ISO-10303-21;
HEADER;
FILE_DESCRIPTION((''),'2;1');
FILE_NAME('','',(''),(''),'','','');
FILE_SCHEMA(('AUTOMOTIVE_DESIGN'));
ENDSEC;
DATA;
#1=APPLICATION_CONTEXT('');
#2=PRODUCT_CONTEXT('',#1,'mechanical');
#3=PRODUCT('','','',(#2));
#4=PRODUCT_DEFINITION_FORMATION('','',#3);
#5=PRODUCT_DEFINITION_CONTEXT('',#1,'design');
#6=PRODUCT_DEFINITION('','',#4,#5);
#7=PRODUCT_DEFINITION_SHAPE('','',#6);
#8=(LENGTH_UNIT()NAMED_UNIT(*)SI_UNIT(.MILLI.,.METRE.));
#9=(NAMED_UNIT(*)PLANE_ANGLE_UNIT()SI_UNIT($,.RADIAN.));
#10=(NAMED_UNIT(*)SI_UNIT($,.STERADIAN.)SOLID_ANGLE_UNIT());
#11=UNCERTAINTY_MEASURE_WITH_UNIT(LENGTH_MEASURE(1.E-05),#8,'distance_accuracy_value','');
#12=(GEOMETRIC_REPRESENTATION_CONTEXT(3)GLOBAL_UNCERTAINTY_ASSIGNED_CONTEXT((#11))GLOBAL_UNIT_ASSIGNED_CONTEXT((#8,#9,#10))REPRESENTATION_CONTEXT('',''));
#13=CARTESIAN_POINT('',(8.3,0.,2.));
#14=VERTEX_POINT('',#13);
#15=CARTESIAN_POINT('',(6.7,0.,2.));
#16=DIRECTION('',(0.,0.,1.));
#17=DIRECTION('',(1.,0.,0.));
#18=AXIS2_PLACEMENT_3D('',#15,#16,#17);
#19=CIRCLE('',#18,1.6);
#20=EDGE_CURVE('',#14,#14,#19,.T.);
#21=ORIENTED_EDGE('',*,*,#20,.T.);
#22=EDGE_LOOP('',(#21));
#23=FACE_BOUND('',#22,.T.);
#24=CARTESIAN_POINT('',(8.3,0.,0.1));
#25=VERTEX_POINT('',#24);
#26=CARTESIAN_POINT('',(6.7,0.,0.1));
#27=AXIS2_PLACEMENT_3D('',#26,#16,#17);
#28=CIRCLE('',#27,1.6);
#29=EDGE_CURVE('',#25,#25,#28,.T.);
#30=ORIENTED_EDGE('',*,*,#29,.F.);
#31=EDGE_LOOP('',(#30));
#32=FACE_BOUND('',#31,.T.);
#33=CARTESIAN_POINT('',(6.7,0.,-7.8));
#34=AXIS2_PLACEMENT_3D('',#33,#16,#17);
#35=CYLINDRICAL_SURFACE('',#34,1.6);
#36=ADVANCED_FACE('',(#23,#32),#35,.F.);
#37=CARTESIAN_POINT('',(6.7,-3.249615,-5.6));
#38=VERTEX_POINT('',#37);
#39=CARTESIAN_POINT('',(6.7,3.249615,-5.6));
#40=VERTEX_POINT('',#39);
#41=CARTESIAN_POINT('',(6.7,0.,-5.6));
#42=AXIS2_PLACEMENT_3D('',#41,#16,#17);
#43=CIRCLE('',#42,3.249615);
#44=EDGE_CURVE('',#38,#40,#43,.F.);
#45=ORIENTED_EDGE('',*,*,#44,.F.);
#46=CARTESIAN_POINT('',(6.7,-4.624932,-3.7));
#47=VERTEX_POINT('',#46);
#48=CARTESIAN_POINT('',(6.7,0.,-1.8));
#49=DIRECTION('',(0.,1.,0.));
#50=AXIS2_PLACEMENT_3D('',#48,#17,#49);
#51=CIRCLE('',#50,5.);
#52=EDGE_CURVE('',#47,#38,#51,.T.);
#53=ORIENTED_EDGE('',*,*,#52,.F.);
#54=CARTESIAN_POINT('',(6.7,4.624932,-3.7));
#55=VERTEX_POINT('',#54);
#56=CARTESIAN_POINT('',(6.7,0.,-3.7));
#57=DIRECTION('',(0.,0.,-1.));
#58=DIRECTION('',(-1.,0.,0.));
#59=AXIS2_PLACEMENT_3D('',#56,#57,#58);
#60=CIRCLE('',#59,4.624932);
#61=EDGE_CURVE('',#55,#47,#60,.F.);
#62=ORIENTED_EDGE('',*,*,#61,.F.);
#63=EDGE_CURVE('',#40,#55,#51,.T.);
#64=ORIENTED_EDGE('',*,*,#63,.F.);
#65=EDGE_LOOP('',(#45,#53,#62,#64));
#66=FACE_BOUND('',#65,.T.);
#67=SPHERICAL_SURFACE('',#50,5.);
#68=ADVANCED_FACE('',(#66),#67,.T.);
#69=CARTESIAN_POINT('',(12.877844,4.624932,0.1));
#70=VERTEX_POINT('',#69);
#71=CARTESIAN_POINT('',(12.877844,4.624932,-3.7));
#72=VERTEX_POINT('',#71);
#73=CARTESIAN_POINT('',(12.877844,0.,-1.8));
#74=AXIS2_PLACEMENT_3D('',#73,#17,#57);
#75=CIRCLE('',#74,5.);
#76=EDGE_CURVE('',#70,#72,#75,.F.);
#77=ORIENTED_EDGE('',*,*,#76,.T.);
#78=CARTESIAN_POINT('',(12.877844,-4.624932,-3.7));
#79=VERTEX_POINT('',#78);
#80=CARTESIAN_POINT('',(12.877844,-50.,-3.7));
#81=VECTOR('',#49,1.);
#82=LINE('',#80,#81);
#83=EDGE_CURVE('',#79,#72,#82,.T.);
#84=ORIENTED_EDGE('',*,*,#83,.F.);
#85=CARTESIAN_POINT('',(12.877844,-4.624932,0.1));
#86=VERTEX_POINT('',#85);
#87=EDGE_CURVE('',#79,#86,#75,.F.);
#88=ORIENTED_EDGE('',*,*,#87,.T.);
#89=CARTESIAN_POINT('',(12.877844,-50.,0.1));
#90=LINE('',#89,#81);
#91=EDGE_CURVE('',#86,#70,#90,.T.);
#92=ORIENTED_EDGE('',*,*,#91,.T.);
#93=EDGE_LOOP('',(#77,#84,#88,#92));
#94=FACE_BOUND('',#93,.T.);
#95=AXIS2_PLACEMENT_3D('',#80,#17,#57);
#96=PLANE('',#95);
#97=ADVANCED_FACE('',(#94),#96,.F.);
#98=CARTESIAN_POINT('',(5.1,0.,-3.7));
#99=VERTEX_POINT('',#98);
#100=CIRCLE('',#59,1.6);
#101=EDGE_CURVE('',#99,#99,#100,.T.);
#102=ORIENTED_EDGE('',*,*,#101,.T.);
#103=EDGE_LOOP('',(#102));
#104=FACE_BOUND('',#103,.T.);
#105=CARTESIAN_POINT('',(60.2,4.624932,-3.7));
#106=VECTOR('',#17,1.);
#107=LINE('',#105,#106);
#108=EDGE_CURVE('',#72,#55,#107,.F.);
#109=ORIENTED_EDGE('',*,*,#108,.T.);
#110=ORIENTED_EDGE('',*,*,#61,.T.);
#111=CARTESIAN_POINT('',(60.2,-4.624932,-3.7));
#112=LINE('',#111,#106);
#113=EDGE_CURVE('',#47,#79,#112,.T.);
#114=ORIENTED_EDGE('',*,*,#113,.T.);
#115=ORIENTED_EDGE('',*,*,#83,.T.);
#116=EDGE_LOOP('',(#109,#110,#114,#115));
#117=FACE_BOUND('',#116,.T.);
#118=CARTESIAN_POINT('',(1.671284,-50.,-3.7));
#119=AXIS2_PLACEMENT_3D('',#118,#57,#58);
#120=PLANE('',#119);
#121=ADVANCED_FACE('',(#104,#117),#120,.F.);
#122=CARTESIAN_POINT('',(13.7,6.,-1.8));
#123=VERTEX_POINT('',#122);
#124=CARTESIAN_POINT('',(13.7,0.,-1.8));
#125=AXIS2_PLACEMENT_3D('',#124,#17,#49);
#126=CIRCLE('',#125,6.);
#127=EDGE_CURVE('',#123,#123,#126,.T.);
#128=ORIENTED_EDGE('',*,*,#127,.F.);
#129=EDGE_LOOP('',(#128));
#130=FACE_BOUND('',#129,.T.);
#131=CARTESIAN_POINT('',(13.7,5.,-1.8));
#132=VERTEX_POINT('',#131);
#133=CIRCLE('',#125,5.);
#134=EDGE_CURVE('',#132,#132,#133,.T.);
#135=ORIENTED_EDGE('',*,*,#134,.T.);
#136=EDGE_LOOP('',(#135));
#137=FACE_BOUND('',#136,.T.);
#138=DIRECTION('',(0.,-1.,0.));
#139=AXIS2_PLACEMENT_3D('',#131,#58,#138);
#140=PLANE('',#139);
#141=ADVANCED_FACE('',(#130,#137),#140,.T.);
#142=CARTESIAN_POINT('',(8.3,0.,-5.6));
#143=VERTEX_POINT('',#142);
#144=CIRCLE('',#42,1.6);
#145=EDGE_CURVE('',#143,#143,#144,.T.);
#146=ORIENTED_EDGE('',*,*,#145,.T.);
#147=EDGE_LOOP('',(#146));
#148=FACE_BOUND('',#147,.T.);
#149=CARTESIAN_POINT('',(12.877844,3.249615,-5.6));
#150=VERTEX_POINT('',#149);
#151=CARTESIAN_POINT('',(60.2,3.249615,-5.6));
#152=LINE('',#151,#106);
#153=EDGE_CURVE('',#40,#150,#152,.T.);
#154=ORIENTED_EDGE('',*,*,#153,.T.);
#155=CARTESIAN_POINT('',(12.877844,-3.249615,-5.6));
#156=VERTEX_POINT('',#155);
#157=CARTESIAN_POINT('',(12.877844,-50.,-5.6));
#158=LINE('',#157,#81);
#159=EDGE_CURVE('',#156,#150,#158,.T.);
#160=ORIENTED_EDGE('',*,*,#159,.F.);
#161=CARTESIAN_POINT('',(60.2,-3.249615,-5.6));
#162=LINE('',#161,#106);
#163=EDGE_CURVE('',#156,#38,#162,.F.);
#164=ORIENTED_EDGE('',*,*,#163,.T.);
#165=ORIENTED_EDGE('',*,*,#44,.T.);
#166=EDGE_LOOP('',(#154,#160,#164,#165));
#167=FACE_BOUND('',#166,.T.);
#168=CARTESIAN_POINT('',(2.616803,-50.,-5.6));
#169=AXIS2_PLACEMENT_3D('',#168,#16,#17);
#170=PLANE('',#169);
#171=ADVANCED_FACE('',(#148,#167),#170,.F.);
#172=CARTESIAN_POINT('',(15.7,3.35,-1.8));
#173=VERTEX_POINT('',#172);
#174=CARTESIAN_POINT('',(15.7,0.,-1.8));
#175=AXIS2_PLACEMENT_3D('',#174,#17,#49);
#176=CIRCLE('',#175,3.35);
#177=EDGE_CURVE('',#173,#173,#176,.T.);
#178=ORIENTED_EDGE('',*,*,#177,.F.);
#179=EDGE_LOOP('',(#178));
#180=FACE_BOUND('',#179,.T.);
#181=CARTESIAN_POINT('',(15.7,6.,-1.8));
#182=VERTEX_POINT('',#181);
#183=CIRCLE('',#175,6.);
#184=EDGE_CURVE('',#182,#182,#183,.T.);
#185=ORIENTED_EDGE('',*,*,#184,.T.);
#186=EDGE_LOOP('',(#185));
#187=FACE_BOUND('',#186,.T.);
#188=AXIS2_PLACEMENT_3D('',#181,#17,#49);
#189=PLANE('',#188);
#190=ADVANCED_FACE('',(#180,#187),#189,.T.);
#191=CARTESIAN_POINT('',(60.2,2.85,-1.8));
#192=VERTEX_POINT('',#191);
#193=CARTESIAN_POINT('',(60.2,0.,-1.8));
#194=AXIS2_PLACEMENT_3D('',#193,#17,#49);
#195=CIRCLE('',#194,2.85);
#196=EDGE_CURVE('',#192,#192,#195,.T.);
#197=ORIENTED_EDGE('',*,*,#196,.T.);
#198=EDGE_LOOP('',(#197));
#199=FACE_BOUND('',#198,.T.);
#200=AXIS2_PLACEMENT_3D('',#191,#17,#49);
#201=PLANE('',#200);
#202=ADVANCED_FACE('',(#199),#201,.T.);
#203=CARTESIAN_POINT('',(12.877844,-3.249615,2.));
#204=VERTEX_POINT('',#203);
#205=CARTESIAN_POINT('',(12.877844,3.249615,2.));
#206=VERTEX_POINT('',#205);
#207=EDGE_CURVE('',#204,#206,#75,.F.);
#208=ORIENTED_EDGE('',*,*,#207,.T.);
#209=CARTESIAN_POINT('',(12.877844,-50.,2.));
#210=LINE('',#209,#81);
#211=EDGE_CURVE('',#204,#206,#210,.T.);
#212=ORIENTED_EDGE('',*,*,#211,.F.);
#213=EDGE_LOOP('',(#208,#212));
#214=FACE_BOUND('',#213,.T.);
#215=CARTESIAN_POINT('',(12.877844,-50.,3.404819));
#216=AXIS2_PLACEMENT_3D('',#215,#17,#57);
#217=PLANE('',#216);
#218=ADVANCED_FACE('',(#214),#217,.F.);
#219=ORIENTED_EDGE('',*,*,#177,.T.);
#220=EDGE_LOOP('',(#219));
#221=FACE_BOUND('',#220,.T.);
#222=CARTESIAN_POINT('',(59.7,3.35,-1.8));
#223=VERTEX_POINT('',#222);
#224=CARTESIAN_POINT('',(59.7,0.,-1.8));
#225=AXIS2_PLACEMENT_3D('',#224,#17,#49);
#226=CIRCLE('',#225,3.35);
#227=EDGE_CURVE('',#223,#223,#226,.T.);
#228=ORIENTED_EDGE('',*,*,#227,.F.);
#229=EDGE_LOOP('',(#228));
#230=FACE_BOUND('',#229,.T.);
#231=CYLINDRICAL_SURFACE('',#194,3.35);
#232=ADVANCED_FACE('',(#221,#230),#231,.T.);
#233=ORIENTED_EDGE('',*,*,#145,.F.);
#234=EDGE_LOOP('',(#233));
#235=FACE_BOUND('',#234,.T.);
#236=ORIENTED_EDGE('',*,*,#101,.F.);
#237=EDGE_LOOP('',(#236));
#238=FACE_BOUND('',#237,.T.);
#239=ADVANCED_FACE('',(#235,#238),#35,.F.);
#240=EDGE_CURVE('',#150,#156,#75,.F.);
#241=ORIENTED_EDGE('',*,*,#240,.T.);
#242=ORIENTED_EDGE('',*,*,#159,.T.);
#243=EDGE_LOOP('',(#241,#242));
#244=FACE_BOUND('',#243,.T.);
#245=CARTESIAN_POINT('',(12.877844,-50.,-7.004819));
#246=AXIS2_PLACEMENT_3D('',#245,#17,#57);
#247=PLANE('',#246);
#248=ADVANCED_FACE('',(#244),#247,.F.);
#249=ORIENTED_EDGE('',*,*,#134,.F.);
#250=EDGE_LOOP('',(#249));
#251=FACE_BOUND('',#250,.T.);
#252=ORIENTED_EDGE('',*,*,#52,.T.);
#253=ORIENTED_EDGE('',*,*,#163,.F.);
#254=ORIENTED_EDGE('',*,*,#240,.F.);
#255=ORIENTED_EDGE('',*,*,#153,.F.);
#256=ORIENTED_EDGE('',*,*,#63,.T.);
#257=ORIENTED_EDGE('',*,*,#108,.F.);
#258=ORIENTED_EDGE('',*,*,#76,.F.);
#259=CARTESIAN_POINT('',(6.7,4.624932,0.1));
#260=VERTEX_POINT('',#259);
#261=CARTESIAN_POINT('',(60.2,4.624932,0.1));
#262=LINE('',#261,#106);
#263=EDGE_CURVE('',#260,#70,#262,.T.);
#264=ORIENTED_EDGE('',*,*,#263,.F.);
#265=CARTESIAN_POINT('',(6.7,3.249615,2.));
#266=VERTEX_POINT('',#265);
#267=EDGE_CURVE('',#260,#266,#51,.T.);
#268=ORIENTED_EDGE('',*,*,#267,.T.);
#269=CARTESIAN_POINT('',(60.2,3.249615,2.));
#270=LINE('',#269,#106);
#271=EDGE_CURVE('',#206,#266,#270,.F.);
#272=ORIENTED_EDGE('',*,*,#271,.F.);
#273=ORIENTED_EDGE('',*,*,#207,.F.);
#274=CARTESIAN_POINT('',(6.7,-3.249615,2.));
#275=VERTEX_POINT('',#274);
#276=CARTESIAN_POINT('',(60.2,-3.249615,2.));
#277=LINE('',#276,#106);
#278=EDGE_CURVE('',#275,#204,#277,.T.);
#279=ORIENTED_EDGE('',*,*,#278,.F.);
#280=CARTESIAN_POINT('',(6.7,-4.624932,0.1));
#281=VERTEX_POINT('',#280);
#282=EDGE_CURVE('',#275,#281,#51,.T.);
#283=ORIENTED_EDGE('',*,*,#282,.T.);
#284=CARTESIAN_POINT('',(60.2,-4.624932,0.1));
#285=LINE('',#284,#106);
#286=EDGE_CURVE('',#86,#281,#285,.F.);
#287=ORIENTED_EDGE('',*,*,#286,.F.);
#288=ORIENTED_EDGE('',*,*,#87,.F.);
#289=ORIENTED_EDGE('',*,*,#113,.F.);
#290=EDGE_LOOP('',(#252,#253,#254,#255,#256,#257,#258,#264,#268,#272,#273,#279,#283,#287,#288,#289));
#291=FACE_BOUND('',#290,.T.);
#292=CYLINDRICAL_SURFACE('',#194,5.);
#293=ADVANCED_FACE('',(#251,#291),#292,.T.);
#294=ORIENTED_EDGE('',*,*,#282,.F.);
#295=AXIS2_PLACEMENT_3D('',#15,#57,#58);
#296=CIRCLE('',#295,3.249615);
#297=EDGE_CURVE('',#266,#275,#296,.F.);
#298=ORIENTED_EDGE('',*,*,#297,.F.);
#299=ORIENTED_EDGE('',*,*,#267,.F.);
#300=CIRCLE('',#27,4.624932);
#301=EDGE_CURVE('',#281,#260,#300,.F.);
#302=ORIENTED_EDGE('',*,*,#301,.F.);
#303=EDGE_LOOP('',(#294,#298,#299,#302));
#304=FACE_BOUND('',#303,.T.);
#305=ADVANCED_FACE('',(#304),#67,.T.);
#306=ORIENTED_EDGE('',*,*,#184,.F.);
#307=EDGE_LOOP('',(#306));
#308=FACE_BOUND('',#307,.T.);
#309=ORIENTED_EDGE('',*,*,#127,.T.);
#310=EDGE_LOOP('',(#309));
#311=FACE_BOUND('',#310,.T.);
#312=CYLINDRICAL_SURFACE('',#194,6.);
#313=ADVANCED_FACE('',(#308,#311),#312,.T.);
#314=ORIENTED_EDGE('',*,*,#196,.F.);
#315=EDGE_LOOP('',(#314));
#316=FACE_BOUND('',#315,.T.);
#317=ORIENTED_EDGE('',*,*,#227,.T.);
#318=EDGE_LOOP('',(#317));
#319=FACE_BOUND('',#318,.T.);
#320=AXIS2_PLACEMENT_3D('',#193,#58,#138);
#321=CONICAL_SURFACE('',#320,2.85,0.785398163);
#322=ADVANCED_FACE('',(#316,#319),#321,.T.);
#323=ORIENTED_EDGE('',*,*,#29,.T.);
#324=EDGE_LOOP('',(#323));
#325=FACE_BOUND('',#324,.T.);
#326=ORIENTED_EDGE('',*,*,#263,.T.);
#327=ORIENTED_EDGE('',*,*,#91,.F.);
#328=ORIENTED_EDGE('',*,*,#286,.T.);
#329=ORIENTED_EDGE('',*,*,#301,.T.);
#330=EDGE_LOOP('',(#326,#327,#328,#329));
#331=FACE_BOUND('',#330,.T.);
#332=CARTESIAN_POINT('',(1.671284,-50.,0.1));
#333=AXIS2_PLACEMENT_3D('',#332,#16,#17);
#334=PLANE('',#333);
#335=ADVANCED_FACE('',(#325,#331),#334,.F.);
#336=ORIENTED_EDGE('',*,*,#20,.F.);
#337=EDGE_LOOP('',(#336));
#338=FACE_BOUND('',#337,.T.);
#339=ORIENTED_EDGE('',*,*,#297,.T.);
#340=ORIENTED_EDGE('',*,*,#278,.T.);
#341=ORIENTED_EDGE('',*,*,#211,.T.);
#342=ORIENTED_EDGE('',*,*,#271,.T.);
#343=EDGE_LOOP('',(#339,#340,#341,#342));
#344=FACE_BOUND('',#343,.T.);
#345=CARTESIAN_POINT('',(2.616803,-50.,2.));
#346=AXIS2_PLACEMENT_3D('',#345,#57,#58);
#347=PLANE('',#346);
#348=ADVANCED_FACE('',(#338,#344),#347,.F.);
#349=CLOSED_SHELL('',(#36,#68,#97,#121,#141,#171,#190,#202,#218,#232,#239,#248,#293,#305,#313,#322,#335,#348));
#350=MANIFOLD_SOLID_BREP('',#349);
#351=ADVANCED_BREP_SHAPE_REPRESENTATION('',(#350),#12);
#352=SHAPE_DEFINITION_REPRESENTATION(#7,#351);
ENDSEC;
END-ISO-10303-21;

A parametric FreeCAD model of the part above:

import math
import FreeCAD as App
import Part
import Sketcher
from FreeCAD import Vector
Q = App.Units.Quantity

doc = App.newDocument("Part")
body = doc.addObject("PartDesign::Body", "Body")

sketch1 = body.newObject("Sketcher::SketchObject", "Sketch")
sketch1.AttachmentSupport = (doc.getObject("XY_Plane"), [""])
sketch1.MapMode = "FlatFace"
sketch1.AttachmentOffset = App.Placement(Vector(0, 0, -1.8), App.Rotation())
sketch1.addGeometry([
    Part.LineSegment(Vector(13.7, 5, 0), Vector(6.7, 5, 0)),
    Part.ArcOfCircle(Part.Circle(Vector(6.7, 0, 0), Vector(0, 0, 1), 5), math.radians(90), math.radians(180)),
    Part.LineSegment(Vector(1.7, 0, 0), Vector(60.2, 0, 0)),
    Part.LineSegment(Vector(60.2, 0, 0), Vector(60.2, 2.9, 0)),
    Part.LineSegment(Vector(60.2, 2.9, 0), Vector(59.7, 3.4, 0)),
    Part.LineSegment(Vector(59.7, 3.4, 0), Vector(15.7, 3.4, 0)),
    Part.LineSegment(Vector(15.7, 3.4, 0), Vector(15.7, 6, 0)),
    Part.LineSegment(Vector(15.7, 6, 0), Vector(13.7, 6, 0)),
    Part.LineSegment(Vector(13.7, 6, 0), Vector(13.7, 5, 0)),
], False)
sketch1.addConstraint([
    Sketcher.Constraint("Tangent", 0, 2, 1, 1),
    Sketcher.Constraint("Coincident", 1, 2, 2, 1),
    Sketcher.Constraint("Coincident", 2, 2, 3, 1),
    Sketcher.Constraint("Coincident", 3, 2, 4, 1),
    Sketcher.Constraint("Coincident", 4, 2, 5, 1),
    Sketcher.Constraint("Coincident", 5, 2, 6, 1),
    Sketcher.Constraint("Coincident", 6, 2, 7, 1),
    Sketcher.Constraint("Coincident", 7, 2, 8, 1),
    Sketcher.Constraint("Coincident", 8, 2, 0, 1),
    Sketcher.Constraint("Horizontal", 0),
    Sketcher.Constraint("Horizontal", 2),
    Sketcher.Constraint("Vertical", 3),
    Sketcher.Constraint("Horizontal", 5),
    Sketcher.Constraint("Vertical", 6),
    Sketcher.Constraint("Horizontal", 7),
    Sketcher.Constraint("Vertical", 8),
    Sketcher.Constraint("PointOnObject", 1, 3, -1),
    Sketcher.Constraint("PointOnObject", 1, 2, -1),
    Sketcher.Constraint("Radius", 1, Q("5 mm")),
    Sketcher.Constraint("DistanceX", 0, 2, 0, 1, Q("7 mm")),
    Sketcher.Constraint("DistanceX", 5, 2, 5, 1, Q("44 mm")),
    Sketcher.Constraint("DistanceX", 7, 2, 7, 1, Q("2 mm")),
    Sketcher.Constraint("DistanceY", 8, 2, 8, 1, Q("1 mm")),
    Sketcher.Constraint("Angle", 4, Q("135 deg")),
    Sketcher.Constraint("DistanceX", 2, 1, 2, 2, Q("58.5 mm")),
    Sketcher.Constraint("DistanceY", 3, 1, 3, 2, Q("2.85 mm")),
    Sketcher.Constraint("DistanceX", -1, 1, 1, 3, Q("6.7 mm")),
])
revolution = body.newObject("PartDesign::Revolution", "Revolution")
revolution.Profile = sketch1
revolution.ReferenceAxis = (sketch1, ["H_Axis"])
revolution.Angle = 360

sketch2 = body.newObject("Sketcher::SketchObject", "Sketch001")
sketch2.AttachmentSupport = (doc.getObject("XZ_Plane"), [""])
sketch2.MapMode = "FlatFace"
sketch2.addGeometry([
    Part.LineSegment(Vector(2.6, 2, 0), Vector(2.6, 3.4, 0)),
    Part.LineSegment(Vector(2.6, 3.4, 0), Vector(12.9, 3.4, 0)),
    Part.LineSegment(Vector(12.9, 3.4, 0), Vector(12.9, 2, 0)),
    Part.LineSegment(Vector(12.9, 2, 0), Vector(2.6, 2, 0)),
    Part.LineSegment(Vector(2.6, -7, 0), Vector(2.6, -5.6, 0)),
    Part.LineSegment(Vector(2.6, -5.6, 0), Vector(12.9, -5.6, 0)),
    Part.LineSegment(Vector(12.9, -5.6, 0), Vector(12.9, -7, 0)),
    Part.LineSegment(Vector(12.9, -7, 0), Vector(2.6, -7, 0)),
], False)
sketch2.addConstraint([
    Sketcher.Constraint("Coincident", 0, 2, 1, 1),
    Sketcher.Constraint("Coincident", 1, 2, 2, 1),
    Sketcher.Constraint("Coincident", 2, 2, 3, 1),
    Sketcher.Constraint("Coincident", 3, 2, 0, 1),
    Sketcher.Constraint("Coincident", 4, 2, 5, 1),
    Sketcher.Constraint("Coincident", 5, 2, 6, 1),
    Sketcher.Constraint("Coincident", 6, 2, 7, 1),
    Sketcher.Constraint("Coincident", 7, 2, 4, 1),
    Sketcher.Constraint("Vertical", 0),
    Sketcher.Constraint("Horizontal", 1),
    Sketcher.Constraint("Vertical", 2),
    Sketcher.Constraint("Horizontal", 3),
    Sketcher.Constraint("Vertical", 4),
    Sketcher.Constraint("Horizontal", 5),
    Sketcher.Constraint("Vertical", 6),
    Sketcher.Constraint("Horizontal", 7),
    Sketcher.Constraint("Vertical", 3, 2, 4, 2),
    Sketcher.Constraint("Vertical", 2, 2, 5, 2),
    Sketcher.Constraint("Equal", 2, 4),
    Sketcher.Constraint("DistanceY", -1, 1, 2, 2, Q("2 mm")),
    Sketcher.Constraint("DistanceY", 4, 2, -1, 1, Q("5.6 mm")),
    Sketcher.Constraint("DistanceX", 1, 1, 1, 2, Q("10.261041 mm")),
    Sketcher.Constraint("DistanceY", 0, 1, 0, 2, Q("1.404819 mm")),
    Sketcher.Constraint("DistanceX", -1, 1, 0, 2, Q("2.616803 mm")),
])
pocket1 = body.newObject("PartDesign::Pocket", "Pocket")
pocket1.Profile = sketch2
pocket1.Length = 100
pocket1.Midplane = True

sketch3 = body.newObject("Sketcher::SketchObject", "Sketch002")
sketch3.AttachmentSupport = (doc.getObject("XZ_Plane"), [""])
sketch3.MapMode = "FlatFace"
sketch3.addGeometry([
    Part.LineSegment(Vector(1.7, -3.7, 0), Vector(1.7, 0.1, 0)),
    Part.LineSegment(Vector(1.7, 0.1, 0), Vector(12.9, 0.1, 0)),
    Part.LineSegment(Vector(12.9, 0.1, 0), Vector(12.9, -3.7, 0)),
    Part.LineSegment(Vector(12.9, -3.7, 0), Vector(1.7, -3.7, 0)),
], False)
sketch3.addConstraint([
    Sketcher.Constraint("Coincident", 0, 2, 1, 1),
    Sketcher.Constraint("Coincident", 1, 2, 2, 1),
    Sketcher.Constraint("Coincident", 2, 2, 3, 1),
    Sketcher.Constraint("Coincident", 3, 2, 0, 1),
    Sketcher.Constraint("Vertical", 0),
    Sketcher.Constraint("Horizontal", 1),
    Sketcher.Constraint("Vertical", 2),
    Sketcher.Constraint("Horizontal", 3),
    Sketcher.Constraint("DistanceY", 0, 1, 0, 2, Q("3.8 mm")),
    Sketcher.Constraint("DistanceY", -1, 1, 0, 2, Q("0.1 mm")),
    Sketcher.Constraint("DistanceX", 1, 1, 1, 2, Q("11.20656 mm")),
    Sketcher.Constraint("DistanceX", -1, 1, 0, 2, Q("1.671284 mm")),
])
pocket2 = body.newObject("PartDesign::Pocket", "Pocket001")
pocket2.Profile = sketch3
pocket2.Length = 100
pocket2.Midplane = True

sketch4 = body.newObject("Sketcher::SketchObject", "Sketch003")
sketch4.AttachmentSupport = (doc.getObject("XY_Plane"), [""])
sketch4.MapMode = "FlatFace"
sketch4.AttachmentOffset = App.Placement(Vector(0, 0, 2), App.Rotation())
sketch4.addGeometry(Part.Circle(Vector(6.7, 0, 0), Vector(0, 0, 1), 1.6), False)
sketch4.addConstraint([
    Sketcher.Constraint("PointOnObject", 0, 3, -1),
    Sketcher.Constraint("Diameter", 0, Q("3.2 mm")),
    Sketcher.Constraint("DistanceX", -1, 1, 0, 3, Q("6.7 mm")),
])
pocket3 = body.newObject("PartDesign::Pocket", "Pocket002")
pocket3.Profile = sketch4
pocket3.Type = "ThroughAll"

doc.recompute()
